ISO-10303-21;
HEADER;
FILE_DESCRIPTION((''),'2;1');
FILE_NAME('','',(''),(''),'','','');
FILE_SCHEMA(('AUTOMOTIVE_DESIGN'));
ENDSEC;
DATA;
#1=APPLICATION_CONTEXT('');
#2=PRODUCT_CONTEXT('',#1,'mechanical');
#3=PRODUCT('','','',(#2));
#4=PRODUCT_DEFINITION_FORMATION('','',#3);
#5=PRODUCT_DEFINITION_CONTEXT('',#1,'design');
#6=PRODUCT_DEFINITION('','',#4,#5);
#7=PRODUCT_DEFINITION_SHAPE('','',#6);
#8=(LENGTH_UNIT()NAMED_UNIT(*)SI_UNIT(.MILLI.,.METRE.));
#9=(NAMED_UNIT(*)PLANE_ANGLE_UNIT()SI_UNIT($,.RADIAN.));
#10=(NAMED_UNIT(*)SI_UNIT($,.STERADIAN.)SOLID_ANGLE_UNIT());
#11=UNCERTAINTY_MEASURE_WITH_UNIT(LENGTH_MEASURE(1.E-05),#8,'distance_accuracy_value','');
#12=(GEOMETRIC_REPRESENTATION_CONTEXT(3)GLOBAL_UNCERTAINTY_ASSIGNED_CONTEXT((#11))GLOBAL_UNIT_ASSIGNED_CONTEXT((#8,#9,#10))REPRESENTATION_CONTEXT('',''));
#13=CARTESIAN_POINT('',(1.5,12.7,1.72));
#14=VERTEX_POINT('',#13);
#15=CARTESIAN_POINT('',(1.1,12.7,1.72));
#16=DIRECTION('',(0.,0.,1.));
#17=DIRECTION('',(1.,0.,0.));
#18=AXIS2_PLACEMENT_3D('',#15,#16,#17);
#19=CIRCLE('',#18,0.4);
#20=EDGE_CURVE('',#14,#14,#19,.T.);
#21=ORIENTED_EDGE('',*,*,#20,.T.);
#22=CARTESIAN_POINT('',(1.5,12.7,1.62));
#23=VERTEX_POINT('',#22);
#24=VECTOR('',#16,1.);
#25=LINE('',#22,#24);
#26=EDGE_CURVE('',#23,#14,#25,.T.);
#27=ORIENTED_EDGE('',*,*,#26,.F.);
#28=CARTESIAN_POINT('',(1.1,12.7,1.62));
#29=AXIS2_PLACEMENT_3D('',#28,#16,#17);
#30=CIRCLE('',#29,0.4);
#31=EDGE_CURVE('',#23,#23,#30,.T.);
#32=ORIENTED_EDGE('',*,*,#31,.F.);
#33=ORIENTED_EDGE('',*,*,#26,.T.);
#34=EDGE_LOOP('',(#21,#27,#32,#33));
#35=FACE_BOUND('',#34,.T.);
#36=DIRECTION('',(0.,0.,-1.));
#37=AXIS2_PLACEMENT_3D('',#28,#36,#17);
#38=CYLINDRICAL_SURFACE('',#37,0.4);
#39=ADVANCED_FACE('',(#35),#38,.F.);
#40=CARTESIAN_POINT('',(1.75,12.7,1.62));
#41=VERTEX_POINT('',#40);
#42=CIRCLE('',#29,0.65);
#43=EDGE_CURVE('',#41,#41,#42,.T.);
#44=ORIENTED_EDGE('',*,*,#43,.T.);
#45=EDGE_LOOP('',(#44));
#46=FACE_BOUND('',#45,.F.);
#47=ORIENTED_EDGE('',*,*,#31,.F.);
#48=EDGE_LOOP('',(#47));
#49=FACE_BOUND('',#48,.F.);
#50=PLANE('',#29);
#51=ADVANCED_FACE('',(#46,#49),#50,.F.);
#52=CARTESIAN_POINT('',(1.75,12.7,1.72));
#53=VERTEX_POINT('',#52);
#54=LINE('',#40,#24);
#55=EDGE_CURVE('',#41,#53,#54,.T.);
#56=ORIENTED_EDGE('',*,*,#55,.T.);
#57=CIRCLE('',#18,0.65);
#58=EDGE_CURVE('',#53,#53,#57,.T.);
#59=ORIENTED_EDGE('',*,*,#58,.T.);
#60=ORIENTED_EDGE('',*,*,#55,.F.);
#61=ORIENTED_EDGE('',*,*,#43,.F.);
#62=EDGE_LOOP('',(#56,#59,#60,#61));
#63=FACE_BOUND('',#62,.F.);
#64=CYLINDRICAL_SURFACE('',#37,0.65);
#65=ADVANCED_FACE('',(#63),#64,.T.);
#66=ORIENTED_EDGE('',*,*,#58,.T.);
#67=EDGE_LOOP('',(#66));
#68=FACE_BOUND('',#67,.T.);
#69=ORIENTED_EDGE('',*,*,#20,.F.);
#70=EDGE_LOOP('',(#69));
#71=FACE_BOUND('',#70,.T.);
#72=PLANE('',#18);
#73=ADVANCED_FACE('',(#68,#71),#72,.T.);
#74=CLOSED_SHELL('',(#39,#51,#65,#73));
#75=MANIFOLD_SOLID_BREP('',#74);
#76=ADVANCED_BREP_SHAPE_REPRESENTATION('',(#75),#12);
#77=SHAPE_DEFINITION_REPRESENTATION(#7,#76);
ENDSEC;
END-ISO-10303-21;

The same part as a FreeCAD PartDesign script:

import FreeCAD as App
import Part
import Sketcher

V = App.Vector
Q = App.Units.Quantity

doc = App.newDocument("Part")
body = doc.addObject("PartDesign::Body", "Body")

# Sketch on XY plane
sketch1 = body.newObject("Sketcher::SketchObject", "Sketch")
sketch1.AttachmentSupport = (doc.getObject("XY_Plane"), [""])
sketch1.MapMode = "FlatFace"
sketch1.AttachmentOffset = App.Placement(V(0, 0, 1.62), App.Rotation())
sketch1.addGeometry(Part.Circle(V(0, 0, 0), V(0, 0, 1), 0.4), False)
sketch1.addConstraint(Sketcher.Constraint("Coincident", 0, 3, -1, 1))
sketch1.addConstraint(Sketcher.Constraint("Diameter", 0, Q("0.8 mm")))
pad1 = body.newObject("PartDesign::Pad", "Pad")
pad1.Profile = sketch1
pad1.Length = 0.1
body2 = doc.addObject("PartDesign::Body", "Body001")

# Sketch on XY plane
sketch2 = body2.newObject("Sketcher::SketchObject", "Sketch001")
sketch2.AttachmentSupport = (doc.getObject("XY_Plane001"), [""])
sketch2.MapMode = "FlatFace"
sketch2.AttachmentOffset = App.Placement(V(0, 0, 1.62), App.Rotation())
sketch2.addGeometry(Part.Circle(V(0, 0, 0), V(0, 0, 1), 0.7), False)
sketch2.addConstraint(Sketcher.Constraint("Coincident", 0, 3, -1, 1))
sketch2.addConstraint(Sketcher.Constraint("Diameter", 0, Q("1.3 mm")))
pad2 = body2.newObject("PartDesign::Pad", "Pad001")
pad2.Profile = sketch2
pad2.Length = 0.1
doc.recompute()

boolean = body2.newObject("PartDesign::Boolean", "Boolean")
boolean.Type = "Cut"
boolean.addObjects([body])
body3 = doc.addObject("PartDesign::Body", "Body002")
doc.recompute()

body2.Placement = App.Placement(V(1.1, 12.7, 0), App.Rotation(V(0, 0, 1), 0))
boolean2 = body3.newObject("PartDesign::Boolean", "Boolean001")
boolean2.Type = "Fuse"
boolean2.addObjects([body2])

doc.recompute()
